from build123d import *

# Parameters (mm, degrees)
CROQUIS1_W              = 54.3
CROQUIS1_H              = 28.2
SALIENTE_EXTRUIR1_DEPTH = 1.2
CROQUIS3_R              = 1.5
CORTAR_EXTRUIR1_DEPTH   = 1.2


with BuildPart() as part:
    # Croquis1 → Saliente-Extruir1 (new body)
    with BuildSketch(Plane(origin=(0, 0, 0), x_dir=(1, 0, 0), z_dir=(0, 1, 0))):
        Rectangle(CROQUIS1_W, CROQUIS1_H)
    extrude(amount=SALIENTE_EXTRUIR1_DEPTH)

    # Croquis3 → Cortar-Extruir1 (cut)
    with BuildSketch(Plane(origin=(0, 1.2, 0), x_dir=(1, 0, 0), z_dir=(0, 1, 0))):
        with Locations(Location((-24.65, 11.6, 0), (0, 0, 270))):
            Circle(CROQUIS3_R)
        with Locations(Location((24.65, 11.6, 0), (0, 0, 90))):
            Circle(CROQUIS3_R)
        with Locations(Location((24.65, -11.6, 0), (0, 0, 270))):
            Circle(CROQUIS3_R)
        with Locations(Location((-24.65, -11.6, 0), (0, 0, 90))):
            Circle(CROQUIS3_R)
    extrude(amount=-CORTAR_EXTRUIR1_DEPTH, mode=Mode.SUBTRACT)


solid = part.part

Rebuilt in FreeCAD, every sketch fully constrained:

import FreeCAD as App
import Part
import Sketcher


def add_polygon(sketch, points):
    """Adds a closed chain of lines whose ends are joined by coincident constraints."""
    first, n = sketch.GeometryCount, len(points)
    for a, b in zip(points, points[1:] + points[:1]):
        sketch.addGeometry(Part.LineSegment(App.Vector(*a, 0), App.Vector(*b, 0)), False)
    for i in range(n):
        sketch.addConstraint(Sketcher.Constraint("Coincident", first + i, 2, first + (i + 1) % n, 1))

doc = App.newDocument("Part")
body = doc.addObject("PartDesign::Body", "Body")

# Sketch on XZ plane
sketch1 = body.newObject("Sketcher::SketchObject", "Sketch")
sketch1.AttachmentSupport = (doc.getObject("XZ_Plane"), [""])
sketch1.MapMode = "FlatFace"
add_polygon(sketch1, [(-27.15, -14.1), (-27.15, 14.1), (27.15, 14.1), (27.15, -14.1)])  # lines 0-3
sketch1.addConstraint([
    Sketcher.Constraint("Vertical", 0),
    Sketcher.Constraint("Horizontal", 1),
    Sketcher.Constraint("Vertical", 2),
    Sketcher.Constraint("Horizontal", 3),
    Sketcher.Constraint("Symmetric", 0, 2, 2, 2, -1, 1),
    Sketcher.Constraint("DistanceX", 1, 1, 1, 2, 54.3),
    Sketcher.Constraint("DistanceY", 0, 1, 0, 2, 28.2),
])
pad1 = body.newObject("PartDesign::Pad", "Pad")
pad1.Profile = sketch1
pad1.Length = 1.2
pad1.Reversed = True

# Sketch on XZ plane
sketch2 = body.newObject("Sketcher::SketchObject", "Sketch001")
sketch2.AttachmentSupport = (doc.getObject("XZ_Plane"), [""])
sketch2.MapMode = "FlatFace"
sketch2.AttachmentOffset = App.Placement(App.Vector(0, 0, -1.2), App.Rotation())
sketch2.addGeometry([
    Part.Circle(App.Vector(-24.65, -11.6, 0), App.Vector(0, 0, 1), 1.5),
    Part.Circle(App.Vector(24.65, -11.6, 0), App.Vector(0, 0, 1), 1.5),
    Part.Circle(App.Vector(24.65, 11.6, 0), App.Vector(0, 0, 1), 1.5),
    Part.Circle(App.Vector(-24.65, 11.6, 0), App.Vector(0, 0, 1), 1.5),
], False)
sketch2.addConstraint([
    Sketcher.Constraint("Equal", 0, 1),
    Sketcher.Constraint("Equal", 1, 2),
    Sketcher.Constraint("Equal", 2, 3),
    Sketcher.Constraint("Symmetric", 0, 3, 2, 3, -1, 1),
    Sketcher.Constraint("Symmetric", 1, 3, 3, 3, -1, 1),
    Sketcher.Constraint("Symmetric", 0, 3, 1, 3, -2),
    Sketcher.Constraint("Diameter", 0, 3.0),
    Sketcher.Constraint("DistanceY", 0, 3, -1, 1, 11.6),
    Sketcher.Constraint("DistanceX", 0, 3, 1, 3, 49.3),
])
pocket1 = body.newObject("PartDesign::Pocket", "Pocket")
pocket1.Profile = sketch2
pocket1.Length = 1.2
pocket1.Reversed = True

doc.recompute()
